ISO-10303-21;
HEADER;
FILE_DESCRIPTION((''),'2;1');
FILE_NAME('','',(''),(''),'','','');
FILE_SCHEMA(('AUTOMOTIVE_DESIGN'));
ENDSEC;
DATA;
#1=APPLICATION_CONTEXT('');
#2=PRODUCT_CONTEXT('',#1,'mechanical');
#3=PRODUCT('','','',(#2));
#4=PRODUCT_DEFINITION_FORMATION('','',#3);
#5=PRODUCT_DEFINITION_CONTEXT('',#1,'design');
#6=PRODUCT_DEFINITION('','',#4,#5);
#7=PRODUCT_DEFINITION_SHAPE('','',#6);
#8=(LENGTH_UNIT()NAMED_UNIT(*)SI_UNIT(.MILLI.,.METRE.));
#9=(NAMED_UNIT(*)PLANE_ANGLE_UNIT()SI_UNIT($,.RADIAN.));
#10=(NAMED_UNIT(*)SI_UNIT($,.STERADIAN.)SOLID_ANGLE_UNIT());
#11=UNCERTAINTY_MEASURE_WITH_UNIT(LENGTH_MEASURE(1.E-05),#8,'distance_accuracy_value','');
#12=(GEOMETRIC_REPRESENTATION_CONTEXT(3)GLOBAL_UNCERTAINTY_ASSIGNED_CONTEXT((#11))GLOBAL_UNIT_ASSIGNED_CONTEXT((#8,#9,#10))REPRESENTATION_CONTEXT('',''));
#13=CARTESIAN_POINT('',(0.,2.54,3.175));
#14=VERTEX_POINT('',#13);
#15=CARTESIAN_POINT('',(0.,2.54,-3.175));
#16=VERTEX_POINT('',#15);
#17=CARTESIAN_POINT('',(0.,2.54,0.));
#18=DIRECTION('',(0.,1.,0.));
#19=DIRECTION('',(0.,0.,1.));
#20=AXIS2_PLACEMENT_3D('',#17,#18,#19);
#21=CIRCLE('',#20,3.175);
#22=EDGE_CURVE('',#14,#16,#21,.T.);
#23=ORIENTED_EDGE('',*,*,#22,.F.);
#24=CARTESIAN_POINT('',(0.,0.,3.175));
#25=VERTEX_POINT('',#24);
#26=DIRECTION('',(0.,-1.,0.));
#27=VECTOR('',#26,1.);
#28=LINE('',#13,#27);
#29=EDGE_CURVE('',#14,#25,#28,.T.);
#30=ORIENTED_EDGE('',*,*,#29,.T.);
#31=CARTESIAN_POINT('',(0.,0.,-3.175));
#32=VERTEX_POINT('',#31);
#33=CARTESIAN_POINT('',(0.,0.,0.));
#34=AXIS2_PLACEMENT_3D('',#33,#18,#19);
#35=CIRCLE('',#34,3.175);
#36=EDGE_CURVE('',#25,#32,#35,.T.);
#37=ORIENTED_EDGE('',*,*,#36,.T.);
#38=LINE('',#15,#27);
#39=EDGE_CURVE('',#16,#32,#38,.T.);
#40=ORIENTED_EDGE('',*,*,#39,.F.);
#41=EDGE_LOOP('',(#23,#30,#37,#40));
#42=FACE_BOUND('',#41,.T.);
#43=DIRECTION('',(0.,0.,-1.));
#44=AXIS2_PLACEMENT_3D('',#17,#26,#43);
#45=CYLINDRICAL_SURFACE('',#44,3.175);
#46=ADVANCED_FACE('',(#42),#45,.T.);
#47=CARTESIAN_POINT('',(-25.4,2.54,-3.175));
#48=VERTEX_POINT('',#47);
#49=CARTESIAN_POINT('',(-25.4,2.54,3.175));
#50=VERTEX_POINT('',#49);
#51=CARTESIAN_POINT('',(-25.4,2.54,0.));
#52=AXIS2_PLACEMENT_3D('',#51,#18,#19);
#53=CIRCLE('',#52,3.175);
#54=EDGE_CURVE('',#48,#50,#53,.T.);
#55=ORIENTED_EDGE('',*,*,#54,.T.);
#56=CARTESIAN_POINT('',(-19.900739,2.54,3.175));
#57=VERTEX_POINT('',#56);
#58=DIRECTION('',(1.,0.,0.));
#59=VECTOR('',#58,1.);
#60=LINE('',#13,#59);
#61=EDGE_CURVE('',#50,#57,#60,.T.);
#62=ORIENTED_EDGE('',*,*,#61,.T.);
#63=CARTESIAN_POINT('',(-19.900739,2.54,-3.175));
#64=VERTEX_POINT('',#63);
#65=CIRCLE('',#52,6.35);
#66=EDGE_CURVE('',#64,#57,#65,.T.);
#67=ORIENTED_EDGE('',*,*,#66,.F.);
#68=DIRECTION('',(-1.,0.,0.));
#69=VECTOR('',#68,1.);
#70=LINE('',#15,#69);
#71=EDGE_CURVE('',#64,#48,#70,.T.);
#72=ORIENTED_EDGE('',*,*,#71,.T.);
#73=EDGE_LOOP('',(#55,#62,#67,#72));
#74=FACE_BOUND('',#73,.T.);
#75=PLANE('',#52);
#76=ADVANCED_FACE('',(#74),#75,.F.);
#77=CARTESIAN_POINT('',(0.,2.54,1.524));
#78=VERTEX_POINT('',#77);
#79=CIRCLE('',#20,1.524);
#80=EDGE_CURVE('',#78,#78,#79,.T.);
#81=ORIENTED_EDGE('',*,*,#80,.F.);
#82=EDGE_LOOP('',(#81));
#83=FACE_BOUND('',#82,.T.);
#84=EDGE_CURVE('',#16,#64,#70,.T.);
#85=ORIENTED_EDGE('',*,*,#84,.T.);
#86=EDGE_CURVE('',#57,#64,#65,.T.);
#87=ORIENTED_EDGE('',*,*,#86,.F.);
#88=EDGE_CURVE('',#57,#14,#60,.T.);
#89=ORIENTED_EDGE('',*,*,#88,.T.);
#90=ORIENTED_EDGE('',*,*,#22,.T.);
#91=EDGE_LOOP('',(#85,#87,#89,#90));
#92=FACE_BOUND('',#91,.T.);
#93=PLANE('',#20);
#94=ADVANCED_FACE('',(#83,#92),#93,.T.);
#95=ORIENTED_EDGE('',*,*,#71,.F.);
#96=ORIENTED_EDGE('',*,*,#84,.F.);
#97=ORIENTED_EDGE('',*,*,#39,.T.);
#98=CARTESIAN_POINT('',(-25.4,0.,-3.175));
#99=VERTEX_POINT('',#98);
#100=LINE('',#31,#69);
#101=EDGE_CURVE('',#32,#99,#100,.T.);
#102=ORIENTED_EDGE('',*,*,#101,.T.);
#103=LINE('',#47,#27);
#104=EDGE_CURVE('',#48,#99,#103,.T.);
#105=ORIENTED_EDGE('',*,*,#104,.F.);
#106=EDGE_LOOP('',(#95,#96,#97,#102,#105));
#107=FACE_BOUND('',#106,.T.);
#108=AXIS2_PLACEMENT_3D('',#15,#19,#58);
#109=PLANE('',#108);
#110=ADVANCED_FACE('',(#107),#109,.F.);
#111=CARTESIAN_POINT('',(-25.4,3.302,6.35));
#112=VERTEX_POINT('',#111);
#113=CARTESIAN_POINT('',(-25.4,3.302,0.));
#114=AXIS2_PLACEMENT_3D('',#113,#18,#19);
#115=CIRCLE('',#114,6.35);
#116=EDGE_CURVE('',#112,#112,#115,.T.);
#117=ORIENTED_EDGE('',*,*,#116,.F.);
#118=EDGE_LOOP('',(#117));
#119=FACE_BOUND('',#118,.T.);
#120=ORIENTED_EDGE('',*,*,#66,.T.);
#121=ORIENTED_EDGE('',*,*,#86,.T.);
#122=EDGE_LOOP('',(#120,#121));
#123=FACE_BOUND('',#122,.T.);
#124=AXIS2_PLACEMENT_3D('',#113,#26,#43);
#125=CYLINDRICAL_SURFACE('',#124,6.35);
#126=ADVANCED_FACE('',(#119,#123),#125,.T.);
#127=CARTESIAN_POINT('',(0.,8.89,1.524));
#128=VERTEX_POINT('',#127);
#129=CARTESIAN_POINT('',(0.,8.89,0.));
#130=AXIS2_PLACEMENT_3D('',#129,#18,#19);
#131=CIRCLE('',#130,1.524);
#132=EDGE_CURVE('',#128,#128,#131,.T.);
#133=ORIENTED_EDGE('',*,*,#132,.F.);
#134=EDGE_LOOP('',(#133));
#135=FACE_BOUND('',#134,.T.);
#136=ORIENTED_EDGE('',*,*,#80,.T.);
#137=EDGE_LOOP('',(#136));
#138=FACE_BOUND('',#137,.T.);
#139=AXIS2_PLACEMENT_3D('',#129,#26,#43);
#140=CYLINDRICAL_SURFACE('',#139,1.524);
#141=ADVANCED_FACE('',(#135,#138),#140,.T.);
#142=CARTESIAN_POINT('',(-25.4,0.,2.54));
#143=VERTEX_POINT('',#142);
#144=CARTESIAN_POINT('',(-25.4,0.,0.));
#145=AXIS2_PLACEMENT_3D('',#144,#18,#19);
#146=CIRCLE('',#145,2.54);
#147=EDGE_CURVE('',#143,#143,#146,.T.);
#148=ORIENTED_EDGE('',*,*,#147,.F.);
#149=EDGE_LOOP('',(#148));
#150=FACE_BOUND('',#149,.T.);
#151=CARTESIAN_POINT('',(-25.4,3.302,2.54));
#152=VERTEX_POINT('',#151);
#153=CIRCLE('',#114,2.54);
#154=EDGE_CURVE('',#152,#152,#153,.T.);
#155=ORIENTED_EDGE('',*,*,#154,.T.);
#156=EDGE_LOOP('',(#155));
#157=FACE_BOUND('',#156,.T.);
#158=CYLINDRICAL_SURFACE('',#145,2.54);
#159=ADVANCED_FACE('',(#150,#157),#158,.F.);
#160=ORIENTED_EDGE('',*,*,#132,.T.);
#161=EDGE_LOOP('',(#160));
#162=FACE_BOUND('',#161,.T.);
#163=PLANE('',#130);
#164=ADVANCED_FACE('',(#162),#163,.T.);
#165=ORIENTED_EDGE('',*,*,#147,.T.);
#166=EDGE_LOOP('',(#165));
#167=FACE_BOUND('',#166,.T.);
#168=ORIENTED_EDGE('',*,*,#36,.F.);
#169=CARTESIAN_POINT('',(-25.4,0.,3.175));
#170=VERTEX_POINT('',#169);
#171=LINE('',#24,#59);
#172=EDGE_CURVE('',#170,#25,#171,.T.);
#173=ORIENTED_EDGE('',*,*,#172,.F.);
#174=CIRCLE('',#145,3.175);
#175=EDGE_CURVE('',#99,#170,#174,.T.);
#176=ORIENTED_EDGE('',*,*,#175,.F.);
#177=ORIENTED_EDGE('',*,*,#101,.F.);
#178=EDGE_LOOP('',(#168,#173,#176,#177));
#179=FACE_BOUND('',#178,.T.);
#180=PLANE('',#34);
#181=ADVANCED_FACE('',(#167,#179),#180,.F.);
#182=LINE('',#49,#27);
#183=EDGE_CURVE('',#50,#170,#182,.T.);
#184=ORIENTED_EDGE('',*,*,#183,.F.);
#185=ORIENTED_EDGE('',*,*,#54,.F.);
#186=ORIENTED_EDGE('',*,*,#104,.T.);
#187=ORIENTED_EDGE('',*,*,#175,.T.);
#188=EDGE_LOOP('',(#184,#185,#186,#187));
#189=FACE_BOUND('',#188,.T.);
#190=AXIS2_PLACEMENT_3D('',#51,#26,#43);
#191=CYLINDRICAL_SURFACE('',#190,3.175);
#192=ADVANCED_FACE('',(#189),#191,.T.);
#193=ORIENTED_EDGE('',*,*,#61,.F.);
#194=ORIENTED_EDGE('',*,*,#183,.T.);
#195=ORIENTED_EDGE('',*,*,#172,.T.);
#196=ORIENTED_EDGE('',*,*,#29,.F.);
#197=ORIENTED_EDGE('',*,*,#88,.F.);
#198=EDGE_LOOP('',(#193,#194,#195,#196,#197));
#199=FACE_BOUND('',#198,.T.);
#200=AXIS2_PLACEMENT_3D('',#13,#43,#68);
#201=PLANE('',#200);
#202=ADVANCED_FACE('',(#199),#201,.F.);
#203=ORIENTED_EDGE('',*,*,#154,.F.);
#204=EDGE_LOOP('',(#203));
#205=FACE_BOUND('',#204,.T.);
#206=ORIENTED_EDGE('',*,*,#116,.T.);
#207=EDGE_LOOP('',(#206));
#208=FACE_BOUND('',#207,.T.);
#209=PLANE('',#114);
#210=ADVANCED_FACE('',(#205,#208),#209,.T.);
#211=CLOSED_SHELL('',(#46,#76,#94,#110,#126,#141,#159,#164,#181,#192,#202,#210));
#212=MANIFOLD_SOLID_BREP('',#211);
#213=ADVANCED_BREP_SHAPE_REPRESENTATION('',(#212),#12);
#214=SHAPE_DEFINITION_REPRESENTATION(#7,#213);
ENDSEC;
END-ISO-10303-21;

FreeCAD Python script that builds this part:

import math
import FreeCAD as App
import Part
import Sketcher

V = App.Vector
Q = App.Units.Quantity

doc = App.newDocument("Part")
body = doc.addObject("PartDesign::Body", "Body")

# Sketch on XZ plane
sketch1 = body.newObject("Sketcher::SketchObject", "Sketch")
sketch1.AttachmentSupport = (doc.getObject("XZ_Plane"), [""])
sketch1.MapMode = "FlatFace"
sketch1.addGeometry([
    Part.LineSegment(V(-25.4, 3.2, 0), V(0, 3.2, 0)),
    Part.ArcOfCircle(Part.Circle(V(0, 0, 0), V(0, 0, 1), 3.2), math.radians(-90), math.radians(90)),
    Part.LineSegment(V(0, -3.2, 0), V(-25.4, -3.2, 0)),
    Part.ArcOfCircle(Part.Circle(V(-25.4, 0, 0), V(0, 0, 1), 3.2), math.radians(90), math.radians(270)),
], False)
sketch1.addConstraint([
    Sketcher.Constraint("Tangent", 0, 2, 1, 2),
    Sketcher.Constraint("Tangent", 1, 1, 2, 1),
    Sketcher.Constraint("Tangent", 2, 2, 3, 2),
    Sketcher.Constraint("Tangent", 3, 1, 0, 1),
    Sketcher.Constraint("Horizontal", 0),
    Sketcher.Constraint("Horizontal", 2),
    Sketcher.Constraint("Coincident", 1, 3, -1, 1),
    Sketcher.Constraint("DistanceX", 0, 1, 0, 2, Q("1 in")),
    Sketcher.Constraint("Radius", 1, Q("0.125 in")),
])
pad1 = body.newObject("PartDesign::Pad", "Pad")
pad1.Profile = sketch1
pad1.Length = Q("0.1 in")
pad1.Reversed = True

# Sketch on XZ plane
sketch2 = body.newObject("Sketcher::SketchObject", "Sketch001")
sketch2.AttachmentSupport = (doc.getObject("XZ_Plane"), [""])
sketch2.MapMode = "FlatFace"
sketch2.AttachmentOffset = App.Placement(V(0, 0, -0.1 * 25.4), App.Rotation())
sketch2.addGeometry(Part.Circle(V(0, 0, 0), V(0, 0, 1), 1.5), False)
sketch2.addConstraint([
    Sketcher.Constraint("Coincident", 0, 3, -1, 1),
    Sketcher.Constraint("Diameter", 0, Q("0.12 in")),
])
pad2 = body.newObject("PartDesign::Pad", "Pad001")
pad2.Profile = sketch2
pad2.Length = Q("0.25 in")
pad2.Reversed = True

# Sketch on XZ plane
sketch3 = body.newObject("Sketcher::SketchObject", "Sketch002")
sketch3.AttachmentSupport = (doc.getObject("XZ_Plane"), [""])
sketch3.MapMode = "FlatFace"
sketch3.AttachmentOffset = App.Placement(V(0, 0, -0.1 * 25.4), App.Rotation())
sketch3.addGeometry(Part.Circle(V(-25.4, 0, 0), V(0, 0, 1), 2.5), False)
sketch3.addConstraint([
    Sketcher.Constraint("PointOnObject", 0, 3, -1),
    Sketcher.Constraint("Diameter", 0, Q("0.2 in")),
    Sketcher.Constraint("DistanceX", 0, 3, -1, 1, Q("1 in")),
])
pocket1 = body.newObject("PartDesign::Pocket", "Pocket")
pocket1.Profile = sketch3
pocket1.Type = "ThroughAll"
pocket1.Reversed = True

# Sketch on XZ plane
sketch4 = body.newObject("Sketcher::SketchObject", "Sketch003")
sketch4.AttachmentSupport = (doc.getObject("XZ_Plane"), [""])
sketch4.MapMode = "FlatFace"
sketch4.AttachmentOffset = App.Placement(V(0, 0, -0.13 * 25.4), App.Rotation())
sketch4.addGeometry([
    Part.Circle(V(-25.4, 0, 0), V(0, 0, 1), 6.3),
    Part.Circle(V(-25.4, 0, 0), V(0, 0, 1), 2.5),
], False)
sketch4.addConstraint([
    Sketcher.Constraint("Coincident", 1, 3, 0, 3),
    Sketcher.Constraint("PointOnObject", 0, 3, -1),
    Sketcher.Constraint("Diameter", 0, Q("0.5 in")),
    Sketcher.Constraint("Diameter", 1, Q("0.2 in")),
    Sketcher.Constraint("DistanceX", 0, 3, -1, 1, Q("1 in")),
])
pad3 = body.newObject("PartDesign::Pad", "Pad002")
pad3.Profile = sketch4
pad3.Length = Q("0.03 in")

doc.recompute()
